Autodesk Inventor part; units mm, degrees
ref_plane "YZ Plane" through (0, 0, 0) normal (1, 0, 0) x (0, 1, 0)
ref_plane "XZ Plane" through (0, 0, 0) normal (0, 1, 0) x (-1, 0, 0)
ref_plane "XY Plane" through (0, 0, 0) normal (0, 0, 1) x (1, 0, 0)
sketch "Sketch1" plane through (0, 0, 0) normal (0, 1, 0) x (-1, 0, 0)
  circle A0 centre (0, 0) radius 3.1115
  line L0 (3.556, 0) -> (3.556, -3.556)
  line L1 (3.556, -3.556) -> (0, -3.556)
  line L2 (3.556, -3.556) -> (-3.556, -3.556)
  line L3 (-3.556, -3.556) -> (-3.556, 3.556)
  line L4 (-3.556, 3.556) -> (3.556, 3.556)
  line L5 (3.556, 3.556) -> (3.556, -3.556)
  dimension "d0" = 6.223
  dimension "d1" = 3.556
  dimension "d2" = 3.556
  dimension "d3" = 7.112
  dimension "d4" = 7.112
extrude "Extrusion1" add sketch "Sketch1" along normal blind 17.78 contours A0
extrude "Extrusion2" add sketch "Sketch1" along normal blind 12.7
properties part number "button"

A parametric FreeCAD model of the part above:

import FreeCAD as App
import Part
import Sketcher

V = App.Vector
Q = App.Units.Quantity


def add_polygon(sketch, points):
    """Adds a closed chain of lines whose ends are joined by coincident constraints."""
    first, n = sketch.GeometryCount, len(points)
    for a, b in zip(points, points[1:] + points[:1]):
        sketch.addGeometry(Part.LineSegment(App.Vector(*a, 0), App.Vector(*b, 0)), False)
    for i in range(n):
        sketch.addConstraint(Sketcher.Constraint("Coincident", first + i, 2, first + (i + 1) % n, 1))

doc = App.newDocument("Part")
body = doc.addObject("PartDesign::Body", "Body")

# Sketch on XZ plane
sketch1 = body.newObject("Sketcher::SketchObject", "Sketch")
sketch1.AttachmentSupport = (doc.getObject("XZ_Plane"), [""])
sketch1.MapMode = "FlatFace"
sketch1.addGeometry(Part.Circle(V(0, 0, 0), V(0, 0, 1), 3.1115), False)
sketch1.addConstraint(Sketcher.Constraint("Coincident", 0, 3, -1, 1))
sketch1.addConstraint(Sketcher.Constraint("Diameter", 0, Q("0.245 in")))
pad1 = body.newObject("PartDesign::Pad", "Pad")
pad1.Profile = sketch1
pad1.Length = Q("0.7 in")
pad1.Reversed = True

# Sketch on XZ plane
sketch2 = body.newObject("Sketcher::SketchObject", "Sketch001")
sketch2.AttachmentSupport = (doc.getObject("XZ_Plane"), [""])
sketch2.MapMode = "FlatFace"
add_polygon(sketch2, [(-3.556, -3.556), (-3.556, 3.556), (3.556, 3.556), (3.556, -3.556)])  # lines 0-3
sketch2.addGeometry(Part.Circle(V(0, 0, 0), V(0, 0, 1), 3.1115), False)  # 4
sketch2.addConstraint(Sketcher.Constraint("Vertical", 0))
sketch2.addConstraint(Sketcher.Constraint("Horizontal", 1))
sketch2.addConstraint(Sketcher.Constraint("Vertical", 2))
sketch2.addConstraint(Sketcher.Constraint("Horizontal", 3))
sketch2.addConstraint(Sketcher.Constraint("Coincident", 4, 3, -1, 1))
sketch2.addConstraint(Sketcher.Constraint("Symmetric", 0, 2, 2, 2, -1, 1))
sketch2.addConstraint(Sketcher.Constraint("Equal", 3, 0))
sketch2.addConstraint(Sketcher.Constraint("Diameter", 4, Q("0.245 in")))
sketch2.addConstraint(Sketcher.Constraint("DistanceX", 1, 1, 1, 2, Q("0.28 in")))
pad2 = body.newObject("PartDesign::Pad", "Pad001")
pad2.Profile = sketch2
pad2.Length = Q("0.5 in")
pad2.Reversed = True

doc.recompute()
